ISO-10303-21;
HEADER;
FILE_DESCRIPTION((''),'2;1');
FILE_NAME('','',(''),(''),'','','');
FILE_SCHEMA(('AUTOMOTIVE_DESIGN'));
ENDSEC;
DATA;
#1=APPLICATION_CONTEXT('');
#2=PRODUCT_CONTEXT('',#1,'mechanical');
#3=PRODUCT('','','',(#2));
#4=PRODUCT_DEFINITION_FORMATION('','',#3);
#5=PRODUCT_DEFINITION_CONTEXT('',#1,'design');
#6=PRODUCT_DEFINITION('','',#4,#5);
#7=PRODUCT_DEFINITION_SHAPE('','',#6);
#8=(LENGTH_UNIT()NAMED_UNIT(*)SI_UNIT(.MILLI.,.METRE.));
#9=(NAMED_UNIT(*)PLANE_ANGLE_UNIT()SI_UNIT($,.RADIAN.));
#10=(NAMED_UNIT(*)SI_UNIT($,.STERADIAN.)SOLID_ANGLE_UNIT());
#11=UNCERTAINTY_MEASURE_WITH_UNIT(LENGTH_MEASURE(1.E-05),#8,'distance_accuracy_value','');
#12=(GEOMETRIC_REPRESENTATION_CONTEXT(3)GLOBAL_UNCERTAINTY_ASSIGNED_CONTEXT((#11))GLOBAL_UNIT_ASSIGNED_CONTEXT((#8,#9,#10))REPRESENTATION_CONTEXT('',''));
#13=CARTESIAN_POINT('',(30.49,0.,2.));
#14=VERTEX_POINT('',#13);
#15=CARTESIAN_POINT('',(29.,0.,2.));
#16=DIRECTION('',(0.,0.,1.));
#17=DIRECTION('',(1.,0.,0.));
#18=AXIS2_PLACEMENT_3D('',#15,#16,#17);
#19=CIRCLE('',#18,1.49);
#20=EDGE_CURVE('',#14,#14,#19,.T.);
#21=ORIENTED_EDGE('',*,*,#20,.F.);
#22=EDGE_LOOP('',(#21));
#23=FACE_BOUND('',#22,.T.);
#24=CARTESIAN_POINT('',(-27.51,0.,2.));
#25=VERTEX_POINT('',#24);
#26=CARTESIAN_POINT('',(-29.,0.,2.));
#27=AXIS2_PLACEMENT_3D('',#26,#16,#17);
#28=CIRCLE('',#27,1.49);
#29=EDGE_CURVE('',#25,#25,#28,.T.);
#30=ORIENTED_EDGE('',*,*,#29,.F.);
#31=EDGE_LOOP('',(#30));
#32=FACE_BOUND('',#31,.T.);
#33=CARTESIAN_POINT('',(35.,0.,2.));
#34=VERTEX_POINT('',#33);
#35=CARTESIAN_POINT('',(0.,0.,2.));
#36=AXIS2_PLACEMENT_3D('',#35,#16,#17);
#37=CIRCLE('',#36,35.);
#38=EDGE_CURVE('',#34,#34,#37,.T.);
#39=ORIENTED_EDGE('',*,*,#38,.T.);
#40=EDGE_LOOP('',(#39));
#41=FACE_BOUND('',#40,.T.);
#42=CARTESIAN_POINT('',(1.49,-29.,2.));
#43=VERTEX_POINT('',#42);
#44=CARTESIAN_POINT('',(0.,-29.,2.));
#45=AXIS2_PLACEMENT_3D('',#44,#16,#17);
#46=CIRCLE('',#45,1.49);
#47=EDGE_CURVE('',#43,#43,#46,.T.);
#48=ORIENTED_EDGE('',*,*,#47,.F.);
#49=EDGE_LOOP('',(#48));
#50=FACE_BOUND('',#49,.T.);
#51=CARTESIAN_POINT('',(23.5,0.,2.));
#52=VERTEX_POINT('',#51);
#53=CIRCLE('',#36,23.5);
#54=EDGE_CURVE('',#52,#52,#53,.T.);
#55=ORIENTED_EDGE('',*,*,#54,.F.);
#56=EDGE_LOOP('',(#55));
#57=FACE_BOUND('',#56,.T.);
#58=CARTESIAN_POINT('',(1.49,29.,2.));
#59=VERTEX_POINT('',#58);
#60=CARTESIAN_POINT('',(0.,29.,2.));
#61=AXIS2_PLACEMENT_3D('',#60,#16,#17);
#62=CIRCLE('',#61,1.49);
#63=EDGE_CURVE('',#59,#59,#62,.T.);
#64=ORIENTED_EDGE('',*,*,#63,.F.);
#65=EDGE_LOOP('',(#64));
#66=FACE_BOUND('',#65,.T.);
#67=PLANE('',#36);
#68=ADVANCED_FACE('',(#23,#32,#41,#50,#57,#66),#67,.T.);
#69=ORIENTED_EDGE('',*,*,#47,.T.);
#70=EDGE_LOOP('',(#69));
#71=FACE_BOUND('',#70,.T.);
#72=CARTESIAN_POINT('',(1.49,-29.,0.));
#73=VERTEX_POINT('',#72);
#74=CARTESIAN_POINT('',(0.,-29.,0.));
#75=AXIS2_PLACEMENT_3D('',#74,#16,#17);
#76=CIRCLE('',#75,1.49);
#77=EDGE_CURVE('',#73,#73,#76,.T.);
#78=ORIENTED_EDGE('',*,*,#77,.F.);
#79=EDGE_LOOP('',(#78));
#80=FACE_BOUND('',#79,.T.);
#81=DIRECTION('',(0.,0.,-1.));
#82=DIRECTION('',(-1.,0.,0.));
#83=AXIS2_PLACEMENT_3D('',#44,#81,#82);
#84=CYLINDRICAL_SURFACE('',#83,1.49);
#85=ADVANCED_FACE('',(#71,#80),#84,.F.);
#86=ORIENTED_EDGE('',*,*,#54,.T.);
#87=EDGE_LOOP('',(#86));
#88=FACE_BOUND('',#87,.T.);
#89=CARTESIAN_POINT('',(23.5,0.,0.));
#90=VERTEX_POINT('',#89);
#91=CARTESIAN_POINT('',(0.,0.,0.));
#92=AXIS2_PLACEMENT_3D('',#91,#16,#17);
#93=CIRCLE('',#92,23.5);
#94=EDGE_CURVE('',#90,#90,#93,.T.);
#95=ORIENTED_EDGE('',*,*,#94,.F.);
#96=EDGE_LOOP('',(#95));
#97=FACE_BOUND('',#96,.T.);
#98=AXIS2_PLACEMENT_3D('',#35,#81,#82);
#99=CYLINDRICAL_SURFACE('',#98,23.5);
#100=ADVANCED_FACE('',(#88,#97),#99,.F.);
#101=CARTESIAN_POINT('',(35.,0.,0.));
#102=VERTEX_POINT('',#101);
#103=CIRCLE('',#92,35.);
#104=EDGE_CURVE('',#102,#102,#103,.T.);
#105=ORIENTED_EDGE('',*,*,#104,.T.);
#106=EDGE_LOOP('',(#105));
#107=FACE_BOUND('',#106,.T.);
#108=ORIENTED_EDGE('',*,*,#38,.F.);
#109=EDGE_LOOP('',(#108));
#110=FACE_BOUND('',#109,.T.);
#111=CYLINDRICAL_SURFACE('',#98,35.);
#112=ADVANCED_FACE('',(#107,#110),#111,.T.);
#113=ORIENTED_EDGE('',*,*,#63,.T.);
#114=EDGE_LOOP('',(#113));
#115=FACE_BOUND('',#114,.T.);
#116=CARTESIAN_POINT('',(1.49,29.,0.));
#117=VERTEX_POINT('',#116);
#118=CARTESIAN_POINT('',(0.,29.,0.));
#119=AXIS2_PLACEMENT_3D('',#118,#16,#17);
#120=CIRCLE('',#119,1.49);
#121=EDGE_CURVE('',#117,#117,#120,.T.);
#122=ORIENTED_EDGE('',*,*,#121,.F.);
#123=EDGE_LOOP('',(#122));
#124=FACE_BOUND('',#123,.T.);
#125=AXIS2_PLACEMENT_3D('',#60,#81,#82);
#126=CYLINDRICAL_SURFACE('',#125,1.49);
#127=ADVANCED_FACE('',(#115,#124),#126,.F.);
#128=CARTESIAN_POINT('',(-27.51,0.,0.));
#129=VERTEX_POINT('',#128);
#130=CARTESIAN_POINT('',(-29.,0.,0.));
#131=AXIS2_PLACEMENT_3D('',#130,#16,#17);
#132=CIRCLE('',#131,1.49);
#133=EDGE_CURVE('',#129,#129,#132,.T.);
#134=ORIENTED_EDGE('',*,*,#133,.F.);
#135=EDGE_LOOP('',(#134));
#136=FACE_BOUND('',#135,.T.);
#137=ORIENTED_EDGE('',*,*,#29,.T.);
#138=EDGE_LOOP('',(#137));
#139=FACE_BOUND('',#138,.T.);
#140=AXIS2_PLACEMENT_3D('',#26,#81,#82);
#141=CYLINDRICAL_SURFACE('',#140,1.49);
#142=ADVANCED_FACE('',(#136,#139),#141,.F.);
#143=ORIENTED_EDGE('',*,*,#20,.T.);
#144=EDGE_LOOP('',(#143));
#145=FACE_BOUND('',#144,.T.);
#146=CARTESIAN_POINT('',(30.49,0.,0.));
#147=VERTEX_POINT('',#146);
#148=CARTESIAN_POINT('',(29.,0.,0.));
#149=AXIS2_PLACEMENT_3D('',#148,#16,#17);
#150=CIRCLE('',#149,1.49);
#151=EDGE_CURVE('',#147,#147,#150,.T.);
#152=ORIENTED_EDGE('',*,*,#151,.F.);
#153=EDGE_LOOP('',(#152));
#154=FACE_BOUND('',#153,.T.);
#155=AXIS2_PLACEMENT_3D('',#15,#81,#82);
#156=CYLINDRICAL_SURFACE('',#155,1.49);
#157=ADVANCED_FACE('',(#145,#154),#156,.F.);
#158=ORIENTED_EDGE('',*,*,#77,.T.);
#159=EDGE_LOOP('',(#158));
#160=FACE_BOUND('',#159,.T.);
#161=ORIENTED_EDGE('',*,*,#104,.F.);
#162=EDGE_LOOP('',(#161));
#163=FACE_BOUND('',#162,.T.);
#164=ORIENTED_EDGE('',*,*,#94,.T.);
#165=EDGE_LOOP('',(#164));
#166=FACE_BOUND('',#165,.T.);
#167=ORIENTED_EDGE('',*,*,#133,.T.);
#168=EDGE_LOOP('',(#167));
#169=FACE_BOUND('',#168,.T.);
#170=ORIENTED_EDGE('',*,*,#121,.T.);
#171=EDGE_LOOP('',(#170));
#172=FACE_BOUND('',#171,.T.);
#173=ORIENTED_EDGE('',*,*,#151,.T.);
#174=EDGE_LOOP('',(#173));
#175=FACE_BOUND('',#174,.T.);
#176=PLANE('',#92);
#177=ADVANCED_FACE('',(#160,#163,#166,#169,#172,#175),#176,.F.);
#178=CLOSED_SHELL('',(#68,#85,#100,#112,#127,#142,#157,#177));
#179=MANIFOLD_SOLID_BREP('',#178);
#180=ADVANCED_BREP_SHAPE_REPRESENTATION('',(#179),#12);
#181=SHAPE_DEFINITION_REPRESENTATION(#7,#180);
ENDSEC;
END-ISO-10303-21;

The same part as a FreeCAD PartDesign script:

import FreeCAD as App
import Part
import Sketcher

doc = App.newDocument("Part")
body = doc.addObject("PartDesign::Body", "Body")

# Sketch on XY plane
sketch1 = body.newObject("Sketcher::SketchObject", "Sketch")
sketch1.AttachmentSupport = (doc.getObject("XY_Plane"), [""])
sketch1.MapMode = "FlatFace"
sketch1.addGeometry([
    Part.Circle(App.Vector(0, 0, 0), App.Vector(0, 0, 1), 35),  # 0
    Part.Circle(App.Vector(0, -29, 0), App.Vector(0, 0, 1), 1.5),  # 1
    Part.Circle(App.Vector(-29, 0, 0), App.Vector(0, 0, 1), 1.5),  # 2
    Part.Circle(App.Vector(0, 0, 0), App.Vector(0, 0, 1), 23.5),  # 3
    Part.Circle(App.Vector(29, 0, 0), App.Vector(0, 0, 1), 1.5),  # 4
    Part.Circle(App.Vector(0, 29, 0), App.Vector(0, 0, 1), 1.5),  # 5
], False)
sketch1.addConstraint([
    Sketcher.Constraint("Coincident", 0, 3, -1, 1),
    Sketcher.Constraint("Coincident", 3, 3, -1, 1),
    Sketcher.Constraint("Equal", 1, 2),
    Sketcher.Constraint("Equal", 2, 4),
    Sketcher.Constraint("Equal", 4, 5),
    Sketcher.Constraint("Symmetric", 2, 3, 4, 3, -1, 1),
    Sketcher.Constraint("Symmetric", 1, 3, 5, 3, -1, 1),
    Sketcher.Constraint("PointOnObject", 1, 3, -2),
    Sketcher.Constraint("PointOnObject", 2, 3, -1),
    Sketcher.Constraint("Diameter", 0, 70.0),
    Sketcher.Constraint("Diameter", 3, 47.0),
    Sketcher.Constraint("Diameter", 1, 2.98),
    Sketcher.Constraint("DistanceY", 1, 3, -1, 1, 29.0),
    Sketcher.Constraint("DistanceX", 2, 3, -1, 1, 29.0),
])
pad1 = body.newObject("PartDesign::Pad", "Pad")
pad1.Profile = sketch1
pad1.Length = 2

doc.recompute()
